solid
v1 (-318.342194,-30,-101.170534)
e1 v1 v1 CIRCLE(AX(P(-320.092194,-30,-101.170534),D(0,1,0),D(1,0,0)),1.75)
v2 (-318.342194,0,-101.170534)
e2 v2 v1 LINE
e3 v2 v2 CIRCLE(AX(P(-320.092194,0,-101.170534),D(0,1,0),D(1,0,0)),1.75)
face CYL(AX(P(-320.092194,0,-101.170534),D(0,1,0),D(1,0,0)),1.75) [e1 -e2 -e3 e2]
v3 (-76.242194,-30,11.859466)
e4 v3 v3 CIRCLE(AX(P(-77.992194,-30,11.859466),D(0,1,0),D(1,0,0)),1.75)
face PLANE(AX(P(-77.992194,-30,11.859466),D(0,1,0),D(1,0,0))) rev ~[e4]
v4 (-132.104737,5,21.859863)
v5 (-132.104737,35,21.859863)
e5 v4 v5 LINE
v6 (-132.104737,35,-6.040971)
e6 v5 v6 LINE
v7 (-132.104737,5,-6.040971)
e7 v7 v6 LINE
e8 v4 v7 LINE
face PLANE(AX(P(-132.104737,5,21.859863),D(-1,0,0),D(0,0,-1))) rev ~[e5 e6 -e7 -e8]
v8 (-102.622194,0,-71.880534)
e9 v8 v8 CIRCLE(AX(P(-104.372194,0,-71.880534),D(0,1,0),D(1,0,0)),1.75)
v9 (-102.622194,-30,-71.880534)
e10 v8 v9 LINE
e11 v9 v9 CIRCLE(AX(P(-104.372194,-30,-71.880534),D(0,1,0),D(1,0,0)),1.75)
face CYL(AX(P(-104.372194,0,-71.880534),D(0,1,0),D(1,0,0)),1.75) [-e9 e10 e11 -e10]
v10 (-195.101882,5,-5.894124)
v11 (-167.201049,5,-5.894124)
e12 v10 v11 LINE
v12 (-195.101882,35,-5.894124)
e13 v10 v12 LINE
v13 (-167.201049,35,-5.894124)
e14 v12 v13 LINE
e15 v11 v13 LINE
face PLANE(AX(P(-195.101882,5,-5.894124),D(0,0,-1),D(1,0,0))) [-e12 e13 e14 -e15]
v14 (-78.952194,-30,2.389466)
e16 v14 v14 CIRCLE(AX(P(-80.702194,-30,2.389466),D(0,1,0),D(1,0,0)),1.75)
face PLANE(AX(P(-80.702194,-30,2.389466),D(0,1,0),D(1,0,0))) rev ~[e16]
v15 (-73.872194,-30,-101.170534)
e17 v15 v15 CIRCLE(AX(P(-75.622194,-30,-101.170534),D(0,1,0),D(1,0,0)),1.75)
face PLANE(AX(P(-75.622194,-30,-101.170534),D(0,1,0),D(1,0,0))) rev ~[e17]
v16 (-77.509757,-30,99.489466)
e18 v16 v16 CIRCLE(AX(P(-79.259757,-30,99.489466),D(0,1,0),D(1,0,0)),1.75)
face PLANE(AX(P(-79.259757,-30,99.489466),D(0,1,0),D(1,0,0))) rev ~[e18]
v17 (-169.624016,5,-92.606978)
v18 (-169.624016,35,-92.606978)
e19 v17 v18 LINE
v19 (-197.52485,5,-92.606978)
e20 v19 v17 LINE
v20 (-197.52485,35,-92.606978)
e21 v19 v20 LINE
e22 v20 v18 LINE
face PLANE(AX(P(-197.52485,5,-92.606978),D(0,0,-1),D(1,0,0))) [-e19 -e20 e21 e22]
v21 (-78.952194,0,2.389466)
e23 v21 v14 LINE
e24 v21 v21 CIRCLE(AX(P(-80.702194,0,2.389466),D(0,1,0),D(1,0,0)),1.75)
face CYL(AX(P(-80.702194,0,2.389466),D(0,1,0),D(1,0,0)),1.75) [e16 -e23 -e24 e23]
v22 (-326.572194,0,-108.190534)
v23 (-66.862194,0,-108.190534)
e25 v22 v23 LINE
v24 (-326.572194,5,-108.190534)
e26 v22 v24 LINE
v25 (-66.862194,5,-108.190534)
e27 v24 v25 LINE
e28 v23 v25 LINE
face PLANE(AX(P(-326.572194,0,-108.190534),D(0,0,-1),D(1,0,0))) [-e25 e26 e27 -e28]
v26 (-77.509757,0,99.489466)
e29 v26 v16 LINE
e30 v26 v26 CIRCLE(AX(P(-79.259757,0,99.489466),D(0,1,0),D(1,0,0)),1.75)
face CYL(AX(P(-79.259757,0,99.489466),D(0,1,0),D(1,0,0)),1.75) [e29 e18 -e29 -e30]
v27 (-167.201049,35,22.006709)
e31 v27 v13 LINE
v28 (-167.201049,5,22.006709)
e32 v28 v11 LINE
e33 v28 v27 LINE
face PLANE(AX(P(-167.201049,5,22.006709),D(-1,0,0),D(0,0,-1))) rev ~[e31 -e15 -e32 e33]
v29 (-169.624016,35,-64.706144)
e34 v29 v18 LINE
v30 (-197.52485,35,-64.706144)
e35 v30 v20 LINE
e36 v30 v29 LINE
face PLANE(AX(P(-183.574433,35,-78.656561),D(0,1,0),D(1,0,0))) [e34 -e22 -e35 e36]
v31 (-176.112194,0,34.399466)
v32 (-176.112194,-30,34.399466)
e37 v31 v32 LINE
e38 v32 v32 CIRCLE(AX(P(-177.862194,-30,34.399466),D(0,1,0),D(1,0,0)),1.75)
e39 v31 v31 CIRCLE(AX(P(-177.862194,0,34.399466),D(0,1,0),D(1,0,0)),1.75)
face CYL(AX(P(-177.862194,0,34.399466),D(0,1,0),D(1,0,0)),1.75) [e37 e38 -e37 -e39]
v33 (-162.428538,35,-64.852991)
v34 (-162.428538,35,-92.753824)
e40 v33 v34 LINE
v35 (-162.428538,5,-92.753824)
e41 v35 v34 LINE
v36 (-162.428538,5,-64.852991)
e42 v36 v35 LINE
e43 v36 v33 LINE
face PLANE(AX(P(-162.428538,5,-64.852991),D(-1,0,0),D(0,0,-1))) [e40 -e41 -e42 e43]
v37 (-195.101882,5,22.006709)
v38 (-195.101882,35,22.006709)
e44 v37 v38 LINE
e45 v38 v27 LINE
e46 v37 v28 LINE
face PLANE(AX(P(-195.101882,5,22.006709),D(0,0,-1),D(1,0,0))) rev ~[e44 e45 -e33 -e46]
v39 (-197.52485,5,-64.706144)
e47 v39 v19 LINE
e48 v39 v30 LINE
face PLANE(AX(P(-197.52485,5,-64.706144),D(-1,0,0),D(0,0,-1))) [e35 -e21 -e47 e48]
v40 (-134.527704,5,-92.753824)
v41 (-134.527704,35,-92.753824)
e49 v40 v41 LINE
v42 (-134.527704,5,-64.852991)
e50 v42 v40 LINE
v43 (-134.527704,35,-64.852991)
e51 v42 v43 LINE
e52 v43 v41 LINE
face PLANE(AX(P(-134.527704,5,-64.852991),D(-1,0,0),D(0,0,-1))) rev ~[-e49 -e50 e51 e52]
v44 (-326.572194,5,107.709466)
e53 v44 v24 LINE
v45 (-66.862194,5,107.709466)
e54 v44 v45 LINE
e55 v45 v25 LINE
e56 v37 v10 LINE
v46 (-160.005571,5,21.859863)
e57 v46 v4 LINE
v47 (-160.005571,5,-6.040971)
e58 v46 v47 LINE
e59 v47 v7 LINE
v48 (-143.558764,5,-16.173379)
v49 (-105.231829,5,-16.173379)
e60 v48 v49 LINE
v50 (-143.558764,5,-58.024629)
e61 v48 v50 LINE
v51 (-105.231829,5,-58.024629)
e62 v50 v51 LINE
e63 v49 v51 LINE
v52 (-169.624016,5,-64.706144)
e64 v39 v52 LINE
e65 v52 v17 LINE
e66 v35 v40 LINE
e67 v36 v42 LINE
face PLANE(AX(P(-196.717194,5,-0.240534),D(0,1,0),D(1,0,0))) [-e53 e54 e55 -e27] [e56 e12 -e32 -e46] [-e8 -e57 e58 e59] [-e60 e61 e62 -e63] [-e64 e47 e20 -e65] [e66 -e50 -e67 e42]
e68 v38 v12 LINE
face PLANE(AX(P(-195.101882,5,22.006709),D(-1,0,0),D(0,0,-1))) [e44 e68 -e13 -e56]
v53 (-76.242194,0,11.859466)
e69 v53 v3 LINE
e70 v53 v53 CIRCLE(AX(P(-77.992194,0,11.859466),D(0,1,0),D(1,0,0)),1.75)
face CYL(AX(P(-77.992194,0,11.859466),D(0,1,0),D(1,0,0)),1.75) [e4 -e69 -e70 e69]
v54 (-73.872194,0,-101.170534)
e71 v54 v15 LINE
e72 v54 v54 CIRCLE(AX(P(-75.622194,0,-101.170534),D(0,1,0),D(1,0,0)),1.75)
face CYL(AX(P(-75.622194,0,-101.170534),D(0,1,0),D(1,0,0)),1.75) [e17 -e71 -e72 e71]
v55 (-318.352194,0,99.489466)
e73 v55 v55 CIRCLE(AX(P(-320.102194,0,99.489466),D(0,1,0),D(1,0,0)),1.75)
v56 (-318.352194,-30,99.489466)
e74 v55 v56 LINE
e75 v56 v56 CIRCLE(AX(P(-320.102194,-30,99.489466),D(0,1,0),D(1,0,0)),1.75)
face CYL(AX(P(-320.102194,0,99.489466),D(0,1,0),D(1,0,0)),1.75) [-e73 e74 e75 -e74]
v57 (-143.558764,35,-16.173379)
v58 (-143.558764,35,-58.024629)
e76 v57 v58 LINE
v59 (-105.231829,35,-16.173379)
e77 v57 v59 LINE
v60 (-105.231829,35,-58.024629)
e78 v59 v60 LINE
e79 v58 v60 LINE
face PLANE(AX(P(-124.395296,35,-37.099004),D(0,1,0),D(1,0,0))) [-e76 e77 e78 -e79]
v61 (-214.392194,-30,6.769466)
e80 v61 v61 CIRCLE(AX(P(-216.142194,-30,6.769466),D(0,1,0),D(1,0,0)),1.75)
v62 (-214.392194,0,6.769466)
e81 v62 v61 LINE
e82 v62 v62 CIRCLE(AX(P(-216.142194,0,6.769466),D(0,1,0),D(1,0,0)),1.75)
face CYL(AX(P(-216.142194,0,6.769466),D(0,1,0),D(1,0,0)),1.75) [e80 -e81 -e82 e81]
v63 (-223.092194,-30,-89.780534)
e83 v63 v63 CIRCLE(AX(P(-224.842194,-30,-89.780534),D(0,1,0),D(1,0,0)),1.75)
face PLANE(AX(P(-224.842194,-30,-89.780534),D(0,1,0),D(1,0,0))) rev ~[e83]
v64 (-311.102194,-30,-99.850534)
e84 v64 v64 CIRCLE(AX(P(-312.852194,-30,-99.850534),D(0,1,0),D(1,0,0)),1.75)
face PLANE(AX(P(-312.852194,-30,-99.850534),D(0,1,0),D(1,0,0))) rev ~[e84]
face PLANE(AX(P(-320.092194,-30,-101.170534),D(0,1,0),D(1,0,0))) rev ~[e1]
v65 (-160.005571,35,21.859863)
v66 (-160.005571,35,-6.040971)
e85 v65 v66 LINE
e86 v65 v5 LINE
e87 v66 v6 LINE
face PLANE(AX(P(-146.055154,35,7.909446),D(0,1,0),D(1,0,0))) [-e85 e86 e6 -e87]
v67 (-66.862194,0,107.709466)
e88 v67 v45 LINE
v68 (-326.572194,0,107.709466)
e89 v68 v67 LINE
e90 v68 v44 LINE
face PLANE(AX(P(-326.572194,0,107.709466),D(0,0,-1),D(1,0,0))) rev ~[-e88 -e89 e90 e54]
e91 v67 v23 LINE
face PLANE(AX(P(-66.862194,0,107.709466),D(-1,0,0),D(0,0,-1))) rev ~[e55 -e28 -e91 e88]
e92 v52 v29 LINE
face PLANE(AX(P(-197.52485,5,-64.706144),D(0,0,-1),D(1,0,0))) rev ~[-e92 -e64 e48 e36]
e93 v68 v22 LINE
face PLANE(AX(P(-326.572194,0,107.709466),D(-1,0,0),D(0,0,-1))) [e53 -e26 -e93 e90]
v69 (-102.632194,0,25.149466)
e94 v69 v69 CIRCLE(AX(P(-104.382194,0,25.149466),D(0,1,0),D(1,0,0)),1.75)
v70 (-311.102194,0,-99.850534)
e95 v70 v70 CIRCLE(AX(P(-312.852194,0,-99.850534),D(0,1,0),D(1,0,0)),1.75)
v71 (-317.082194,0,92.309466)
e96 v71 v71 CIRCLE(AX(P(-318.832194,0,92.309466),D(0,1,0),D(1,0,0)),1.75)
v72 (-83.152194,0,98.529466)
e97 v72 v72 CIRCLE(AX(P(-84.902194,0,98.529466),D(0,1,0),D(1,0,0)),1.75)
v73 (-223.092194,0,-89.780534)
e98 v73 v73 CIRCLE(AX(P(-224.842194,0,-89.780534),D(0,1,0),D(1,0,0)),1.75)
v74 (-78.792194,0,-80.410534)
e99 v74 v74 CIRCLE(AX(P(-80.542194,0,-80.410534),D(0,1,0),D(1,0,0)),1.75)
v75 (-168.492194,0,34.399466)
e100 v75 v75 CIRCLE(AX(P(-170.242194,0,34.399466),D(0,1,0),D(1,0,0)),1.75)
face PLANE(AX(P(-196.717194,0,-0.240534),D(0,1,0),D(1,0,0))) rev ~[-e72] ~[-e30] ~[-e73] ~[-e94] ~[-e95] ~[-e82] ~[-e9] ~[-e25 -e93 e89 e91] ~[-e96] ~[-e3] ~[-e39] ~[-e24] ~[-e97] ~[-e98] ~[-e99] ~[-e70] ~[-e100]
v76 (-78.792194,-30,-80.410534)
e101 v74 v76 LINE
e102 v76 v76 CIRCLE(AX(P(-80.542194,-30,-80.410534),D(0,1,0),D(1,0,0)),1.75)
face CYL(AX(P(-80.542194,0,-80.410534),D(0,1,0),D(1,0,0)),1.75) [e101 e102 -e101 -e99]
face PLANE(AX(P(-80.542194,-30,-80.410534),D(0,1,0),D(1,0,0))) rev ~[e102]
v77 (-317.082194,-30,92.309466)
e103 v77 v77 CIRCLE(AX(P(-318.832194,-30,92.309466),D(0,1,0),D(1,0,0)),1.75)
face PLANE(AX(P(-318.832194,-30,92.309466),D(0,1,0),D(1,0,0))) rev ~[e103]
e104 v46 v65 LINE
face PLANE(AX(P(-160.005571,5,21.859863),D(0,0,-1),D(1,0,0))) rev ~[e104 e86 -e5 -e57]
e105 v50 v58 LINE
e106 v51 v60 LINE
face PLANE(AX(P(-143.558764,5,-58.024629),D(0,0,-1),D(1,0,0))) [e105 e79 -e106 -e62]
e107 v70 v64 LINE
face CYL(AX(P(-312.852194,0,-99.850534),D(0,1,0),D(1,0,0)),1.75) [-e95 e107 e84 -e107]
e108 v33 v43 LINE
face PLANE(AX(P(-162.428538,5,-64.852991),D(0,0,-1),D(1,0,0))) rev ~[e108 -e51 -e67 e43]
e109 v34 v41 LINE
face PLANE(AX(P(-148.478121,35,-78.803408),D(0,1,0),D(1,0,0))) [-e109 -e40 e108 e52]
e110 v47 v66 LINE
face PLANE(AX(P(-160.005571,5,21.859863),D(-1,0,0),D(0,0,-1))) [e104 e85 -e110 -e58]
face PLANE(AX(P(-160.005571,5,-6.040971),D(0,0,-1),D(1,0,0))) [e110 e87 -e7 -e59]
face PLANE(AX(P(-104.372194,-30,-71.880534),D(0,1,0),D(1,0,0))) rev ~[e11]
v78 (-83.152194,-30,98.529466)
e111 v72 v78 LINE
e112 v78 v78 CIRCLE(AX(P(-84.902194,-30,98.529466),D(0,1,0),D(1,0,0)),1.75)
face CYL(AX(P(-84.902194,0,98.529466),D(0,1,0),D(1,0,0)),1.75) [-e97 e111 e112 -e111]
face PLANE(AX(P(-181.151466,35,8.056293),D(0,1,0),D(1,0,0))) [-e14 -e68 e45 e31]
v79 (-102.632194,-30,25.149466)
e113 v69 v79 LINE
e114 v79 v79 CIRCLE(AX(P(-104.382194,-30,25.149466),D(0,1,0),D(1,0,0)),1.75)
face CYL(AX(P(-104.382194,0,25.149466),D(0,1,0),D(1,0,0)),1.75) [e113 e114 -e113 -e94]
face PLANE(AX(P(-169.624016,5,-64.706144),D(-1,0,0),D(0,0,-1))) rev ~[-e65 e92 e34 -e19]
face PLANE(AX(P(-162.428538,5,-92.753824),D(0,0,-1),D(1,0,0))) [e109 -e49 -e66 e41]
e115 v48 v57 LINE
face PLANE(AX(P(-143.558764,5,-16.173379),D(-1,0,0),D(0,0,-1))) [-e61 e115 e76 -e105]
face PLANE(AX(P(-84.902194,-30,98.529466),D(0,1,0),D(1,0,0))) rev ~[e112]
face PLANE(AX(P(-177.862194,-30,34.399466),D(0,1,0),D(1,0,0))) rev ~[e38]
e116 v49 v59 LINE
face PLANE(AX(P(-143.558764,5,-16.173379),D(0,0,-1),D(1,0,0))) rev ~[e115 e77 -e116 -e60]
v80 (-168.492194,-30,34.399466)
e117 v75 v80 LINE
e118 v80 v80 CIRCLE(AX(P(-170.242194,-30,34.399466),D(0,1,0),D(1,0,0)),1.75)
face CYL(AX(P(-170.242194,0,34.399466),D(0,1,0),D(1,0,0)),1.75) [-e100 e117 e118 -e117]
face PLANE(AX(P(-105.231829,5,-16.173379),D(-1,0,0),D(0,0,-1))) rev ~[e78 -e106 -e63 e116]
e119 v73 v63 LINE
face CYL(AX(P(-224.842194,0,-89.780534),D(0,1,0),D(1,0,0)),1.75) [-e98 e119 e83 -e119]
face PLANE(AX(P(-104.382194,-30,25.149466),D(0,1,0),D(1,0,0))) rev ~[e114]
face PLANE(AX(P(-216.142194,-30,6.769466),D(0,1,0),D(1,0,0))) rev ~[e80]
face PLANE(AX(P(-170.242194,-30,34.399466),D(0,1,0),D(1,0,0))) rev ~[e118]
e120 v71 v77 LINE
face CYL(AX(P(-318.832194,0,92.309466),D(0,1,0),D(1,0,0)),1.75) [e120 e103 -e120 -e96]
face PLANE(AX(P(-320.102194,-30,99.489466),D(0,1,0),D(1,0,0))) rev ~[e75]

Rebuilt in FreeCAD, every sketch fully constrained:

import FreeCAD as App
import Part
import Sketcher
from FreeCAD import Vector
Q = App.Units.Quantity

doc = App.newDocument("Part")
body = doc.addObject("PartDesign::Body", "Body")

# Sketch on XZ plane
sketch1 = body.newObject("Sketcher::SketchObject", "Sketch")
sketch1.AttachmentSupport = (doc.getObject("XZ_Plane"), [""])
sketch1.MapMode = "FlatFace"
sketch1.addGeometry([
    Part.LineSegment(Vector(-327, -108, 0), Vector(-327, 108, 0)),
    Part.LineSegment(Vector(-327, 108, 0), Vector(-67, 108, 0)),
    Part.LineSegment(Vector(-67, 108, 0), Vector(-67, -108, 0)),
    Part.LineSegment(Vector(-67, -108, 0), Vector(-327, -108, 0)),
], False)
sketch1.addConstraint([
    Sketcher.Constraint("Coincident", 0, 2, 1, 1),
    Sketcher.Constraint("Coincident", 1, 2, 2, 1),
    Sketcher.Constraint("Coincident", 2, 2, 3, 1),
    Sketcher.Constraint("Coincident", 3, 2, 0, 1),
    Sketcher.Constraint("Vertical", 0),
    Sketcher.Constraint("Horizontal", 1),
    Sketcher.Constraint("Vertical", 2),
    Sketcher.Constraint("Horizontal", 3),
    Sketcher.Constraint("DistanceY", 0, 1, 0, 2, Q("215.9 mm")),
    Sketcher.Constraint("DistanceX", 1, 1, 1, 2, Q("259.71 mm")),
    Sketcher.Constraint("DistanceX", 0, 2, -1, 1, Q("326.572194 mm")),
    Sketcher.Constraint("DistanceY", -1, 1, 0, 2, Q("107.709466 mm")),
])
pad1 = body.newObject("PartDesign::Pad", "Pad")
pad1.Profile = sketch1
pad1.Length = 5
pad1.Reversed = True

# Sketch on XZ plane
sketch2 = body.newObject("Sketcher::SketchObject", "Sketch001")
sketch2.AttachmentSupport = (doc.getObject("XZ_Plane"), [""])
sketch2.MapMode = "FlatFace"
sketch2.addGeometry([
    Part.Circle(Vector(-320.1, -101.2, 0), Vector(0, 0, 1), 1.8),  # 0
    Part.Circle(Vector(-312.9, -99.9, 0), Vector(0, 0, 1), 1.8),  # 1
    Part.Circle(Vector(-318.8, 92.3, 0), Vector(0, 0, 1), 1.8),  # 2
    Part.Circle(Vector(-320.1, 99.5, 0), Vector(0, 0, 1), 1.8),  # 3
    Part.Circle(Vector(-177.9, 34.4, 0), Vector(0, 0, 1), 1.8),  # 4
    Part.Circle(Vector(-170.2, 34.4, 0), Vector(0, 0, 1), 1.8),  # 5
    Part.Circle(Vector(-104.4, 25.1, 0), Vector(0, 0, 1), 1.8),  # 6
    Part.Circle(Vector(-216.1, 6.8, 0), Vector(0, 0, 1), 1.8),  # 7
    Part.Circle(Vector(-78, 11.9, 0), Vector(0, 0, 1), 1.8),  # 8
    Part.Circle(Vector(-80.7, 2.4, 0), Vector(0, 0, 1), 1.8),  # 9
    Part.Circle(Vector(-84.9, 98.5, 0), Vector(0, 0, 1), 1.8),  # 10
    Part.Circle(Vector(-79.3, 99.5, 0), Vector(0, 0, 1), 1.8),  # 11
    Part.Circle(Vector(-104.4, -71.9, 0), Vector(0, 0, 1), 1.8),  # 12
    Part.Circle(Vector(-80.5, -80.4, 0), Vector(0, 0, 1), 1.8),  # 13
    Part.Circle(Vector(-75.6, -101.2, 0), Vector(0, 0, 1), 1.8),  # 14
    Part.Circle(Vector(-224.8, -89.8, 0), Vector(0, 0, 1), 1.8),  # 15
], False)
sketch2.addConstraint([
    Sketcher.Constraint("Equal", 0, 1),
    Sketcher.Constraint("Equal", 1, 2),
    Sketcher.Constraint("Equal", 2, 3),
    Sketcher.Constraint("Equal", 3, 4),
    Sketcher.Constraint("Equal", 4, 5),
    Sketcher.Constraint("Equal", 5, 6),
    Sketcher.Constraint("Equal", 6, 7),
    Sketcher.Constraint("Equal", 7, 8),
    Sketcher.Constraint("Equal", 8, 9),
    Sketcher.Constraint("Equal", 9, 10),
    Sketcher.Constraint("Equal", 10, 11),
    Sketcher.Constraint("Equal", 11, 12),
    Sketcher.Constraint("Equal", 12, 13),
    Sketcher.Constraint("Equal", 13, 14),
    Sketcher.Constraint("Equal", 14, 15),
    Sketcher.Constraint("Horizontal", 4, 3, 5, 3),
    Sketcher.Constraint("Horizontal", 3, 3, 11, 3),
    Sketcher.Constraint("Horizontal", 0, 3, 14, 3),
    Sketcher.Constraint("Diameter", 0, Q("3.5 mm")),
    Sketcher.Constraint("DistanceY", 1, 3, 6, 3, Q("125 mm")),
    Sketcher.Constraint("DistanceX", 7, 3, 5, 3, Q("45.9 mm")),
    Sketcher.Constraint("DistanceX", 10, 3, 9, 3, Q("4.2 mm")),
    Sketcher.Constraint("DistanceY", 9, 3, 11, 3, Q("97.1 mm")),
    Sketcher.Constraint("DistanceY", 13, 3, 9, 3, Q("82.8 mm")),
    Sketcher.Constraint("DistanceX", 5, 3, 13, 3, Q("89.7 mm")),
    Sketcher.Constraint("DistanceX", 15, 3, 7, 3, Q("8.7 mm")),
    Sketcher.Constraint("DistanceY", 15, 3, 12, 3, Q("17.9 mm")),
    Sketcher.Constraint("DistanceX", 0, 3, 1, 3, Q("7.24 mm")),
    Sketcher.Constraint("DistanceY", 0, 3, 1, 3, Q("1.32 mm")),
    Sketcher.Constraint("DistanceX", 2, 3, 1, 3, Q("5.98 mm")),
    Sketcher.Constraint("DistanceY", 1, 3, 2, 3, Q("192.16 mm")),
    Sketcher.Constraint("DistanceX", 3, 3, 2, 3, Q("1.27 mm")),
    Sketcher.Constraint("DistanceY", 2, 3, 3, 3, Q("7.18 mm")),
    Sketcher.Constraint("DistanceX", 2, 3, 4, 3, Q("140.97 mm")),
    Sketcher.Constraint("DistanceY", 4, 3, 2, 3, Q("57.91 mm")),
    Sketcher.Constraint("DistanceX", 4, 3, 5, 3, Q("7.62 mm")),
    Sketcher.Constraint("DistanceX", 5, 3, 6, 3, Q("65.86 mm")),
    Sketcher.Constraint("DistanceY", 7, 3, 4, 3, Q("27.63 mm")),
    Sketcher.Constraint("DistanceX", 6, 3, 8, 3, Q("26.39 mm")),
    Sketcher.Constraint("DistanceY", 8, 3, 6, 3, Q("13.29 mm")),
    Sketcher.Constraint("DistanceX", 9, 3, 8, 3, Q("2.71 mm")),
    Sketcher.Constraint("DistanceY", 6, 3, 10, 3, Q("73.38 mm")),
    Sketcher.Constraint("DistanceX", 12, 3, 9, 3, Q("23.67 mm")),
    Sketcher.Constraint("DistanceY", 12, 3, 9, 3, Q("74.27 mm")),
    Sketcher.Constraint("DistanceX", 13, 3, 14, 3, Q("4.92 mm")),
    Sketcher.Constraint("DistanceX", 0, 3, -1, 1, Q("320.092194 mm")),
    Sketcher.Constraint("DistanceY", 0, 3, -1, 1, Q("101.170534 mm")),
    Sketcher.Constraint("DistanceX", 11, 3, -1, 1, Q("79.259757 mm")),
])
pad2 = body.newObject("PartDesign::Pad", "Pad001")
pad2.Profile = sketch2
pad2.Length = 30

# Sketch on XZ plane
sketch3 = body.newObject("Sketcher::SketchObject", "Sketch002")
sketch3.AttachmentSupport = (doc.getObject("XZ_Plane"), [""])
sketch3.MapMode = "FlatFace"
sketch3.AttachmentOffset = App.Placement(Vector(0, 0, -5), App.Rotation())
sketch3.addGeometry([
    Part.LineSegment(Vector(-160, -6, 0), Vector(-160, 22, 0)),  # 0
    Part.LineSegment(Vector(-160, 22, 0), Vector(-132, 22, 0)),  # 1
    Part.LineSegment(Vector(-132, 22, 0), Vector(-132, -6, 0)),  # 2
    Part.LineSegment(Vector(-132, -6, 0), Vector(-160, -6, 0)),  # 3
    Part.LineSegment(Vector(-144, -58, 0), Vector(-144, -16, 0)),  # 4
    Part.LineSegment(Vector(-144, -16, 0), Vector(-105, -16, 0)),  # 5
    Part.LineSegment(Vector(-105, -16, 0), Vector(-105, -58, 0)),  # 6
    Part.LineSegment(Vector(-105, -58, 0), Vector(-144, -58, 0)),  # 7
    Part.LineSegment(Vector(-195, -6, 0), Vector(-195, 22, 0)),  # 8
    Part.LineSegment(Vector(-195, 22, 0), Vector(-167, 22, 0)),  # 9
    Part.LineSegment(Vector(-167, 22, 0), Vector(-167, -6, 0)),  # 10
    Part.LineSegment(Vector(-167, -6, 0), Vector(-195, -6, 0)),  # 11
    Part.LineSegment(Vector(-162, -93, 0), Vector(-162, -65, 0)),  # 12
    Part.LineSegment(Vector(-162, -65, 0), Vector(-135, -65, 0)),  # 13
    Part.LineSegment(Vector(-135, -65, 0), Vector(-135, -93, 0)),  # 14
    Part.LineSegment(Vector(-135, -93, 0), Vector(-162, -93, 0)),  # 15
    Part.LineSegment(Vector(-198, -93, 0), Vector(-198, -65, 0)),  # 16
    Part.LineSegment(Vector(-198, -65, 0), Vector(-170, -65, 0)),  # 17
    Part.LineSegment(Vector(-170, -65, 0), Vector(-170, -93, 0)),  # 18
    Part.LineSegment(Vector(-170, -93, 0), Vector(-198, -93, 0)),  # 19
], False)
sketch3.addConstraint([
    Sketcher.Constraint("Coincident", 0, 2, 1, 1),
    Sketcher.Constraint("Coincident", 1, 2, 2, 1),
    Sketcher.Constraint("Coincident", 2, 2, 3, 1),
    Sketcher.Constraint("Coincident", 3, 2, 0, 1),
    Sketcher.Constraint("Coincident", 4, 2, 5, 1),
    Sketcher.Constraint("Coincident", 5, 2, 6, 1),
    Sketcher.Constraint("Coincident", 6, 2, 7, 1),
    Sketcher.Constraint("Coincident", 7, 2, 4, 1),
    Sketcher.Constraint("Coincident", 8, 2, 9, 1),
    Sketcher.Constraint("Coincident", 9, 2, 10, 1),
    Sketcher.Constraint("Coincident", 10, 2, 11, 1),
    Sketcher.Constraint("Coincident", 11, 2, 8, 1),
    Sketcher.Constraint("Coincident", 12, 2, 13, 1),
    Sketcher.Constraint("Coincident", 13, 2, 14, 1),
    Sketcher.Constraint("Coincident", 14, 2, 15, 1),
    Sketcher.Constraint("Coincident", 15, 2, 12, 1),
    Sketcher.Constraint("Coincident", 16, 2, 17, 1),
    Sketcher.Constraint("Coincident", 17, 2, 18, 1),
    Sketcher.Constraint("Coincident", 18, 2, 19, 1),
    Sketcher.Constraint("Coincident", 19, 2, 16, 1),
    Sketcher.Constraint("Vertical", 0),
    Sketcher.Constraint("Horizontal", 1),
    Sketcher.Constraint("Vertical", 2),
    Sketcher.Constraint("Horizontal", 3),
    Sketcher.Constraint("Vertical", 4),
    Sketcher.Constraint("Horizontal", 5),
    Sketcher.Constraint("Vertical", 6),
    Sketcher.Constraint("Horizontal", 7),
    Sketcher.Constraint("Vertical", 8),
    Sketcher.Constraint("Horizontal", 9),
    Sketcher.Constraint("Vertical", 10),
    Sketcher.Constraint("Horizontal", 11),
    Sketcher.Constraint("Vertical", 12),
    Sketcher.Constraint("Horizontal", 13),
    Sketcher.Constraint("Vertical", 14),
    Sketcher.Constraint("Horizontal", 15),
    Sketcher.Constraint("Vertical", 16),
    Sketcher.Constraint("Horizontal", 17),
    Sketcher.Constraint("Vertical", 18),
    Sketcher.Constraint("Horizontal", 19),
    Sketcher.Constraint("Equal", 3, 9),
    Sketcher.Constraint("Equal", 11, 13),
    Sketcher.Constraint("Equal", 15, 17),
    Sketcher.Constraint("Equal", 19, 0),
    Sketcher.Constraint("Equal", 2, 8),
    Sketcher.Constraint("Equal", 10, 12),
    Sketcher.Constraint("Equal", 14, 16),
    Sketcher.Constraint("DistanceY", 4, 1, 4, 2, Q("41.85125 mm")),
    Sketcher.Constraint("DistanceX", 1, 1, 1, 2, Q("27.900834 mm")),
    Sketcher.Constraint("DistanceX", 5, 1, 5, 2, Q("38.326935 mm")),
    Sketcher.Constraint("DistanceX", 0, 2, -1, 1, Q("160.005571 mm")),
    Sketcher.Constraint("DistanceY", 2, 2, -1, 1, Q("6.040971 mm")),
    Sketcher.Constraint("DistanceY", 4, 2, -1, 1, Q("16.173379 mm")),
    Sketcher.Constraint("DistanceX", 5, 2, -1, 1, Q("105.231829 mm")),
    Sketcher.Constraint("DistanceY", -1, 1, 8, 2, Q("22.006709 mm")),
    Sketcher.Constraint("DistanceX", 9, 2, -1, 1, Q("167.201049 mm")),
    Sketcher.Constraint("DistanceY", 12, 2, -1, 1, Q("64.852991 mm")),
    Sketcher.Constraint("DistanceX", 16, 2, -1, 1, Q("197.52485 mm")),
    Sketcher.Constraint("DistanceX", 12, 2, 6, 2, Q("57.196709 mm")),
    Sketcher.Constraint("DistanceY", 15, 2, 16, 2, Q("28.04768 mm")),
])
pad3 = body.newObject("PartDesign::Pad", "Pad002")
pad3.Profile = sketch3
pad3.Length = 30
pad3.Reversed = True

doc.recompute()
